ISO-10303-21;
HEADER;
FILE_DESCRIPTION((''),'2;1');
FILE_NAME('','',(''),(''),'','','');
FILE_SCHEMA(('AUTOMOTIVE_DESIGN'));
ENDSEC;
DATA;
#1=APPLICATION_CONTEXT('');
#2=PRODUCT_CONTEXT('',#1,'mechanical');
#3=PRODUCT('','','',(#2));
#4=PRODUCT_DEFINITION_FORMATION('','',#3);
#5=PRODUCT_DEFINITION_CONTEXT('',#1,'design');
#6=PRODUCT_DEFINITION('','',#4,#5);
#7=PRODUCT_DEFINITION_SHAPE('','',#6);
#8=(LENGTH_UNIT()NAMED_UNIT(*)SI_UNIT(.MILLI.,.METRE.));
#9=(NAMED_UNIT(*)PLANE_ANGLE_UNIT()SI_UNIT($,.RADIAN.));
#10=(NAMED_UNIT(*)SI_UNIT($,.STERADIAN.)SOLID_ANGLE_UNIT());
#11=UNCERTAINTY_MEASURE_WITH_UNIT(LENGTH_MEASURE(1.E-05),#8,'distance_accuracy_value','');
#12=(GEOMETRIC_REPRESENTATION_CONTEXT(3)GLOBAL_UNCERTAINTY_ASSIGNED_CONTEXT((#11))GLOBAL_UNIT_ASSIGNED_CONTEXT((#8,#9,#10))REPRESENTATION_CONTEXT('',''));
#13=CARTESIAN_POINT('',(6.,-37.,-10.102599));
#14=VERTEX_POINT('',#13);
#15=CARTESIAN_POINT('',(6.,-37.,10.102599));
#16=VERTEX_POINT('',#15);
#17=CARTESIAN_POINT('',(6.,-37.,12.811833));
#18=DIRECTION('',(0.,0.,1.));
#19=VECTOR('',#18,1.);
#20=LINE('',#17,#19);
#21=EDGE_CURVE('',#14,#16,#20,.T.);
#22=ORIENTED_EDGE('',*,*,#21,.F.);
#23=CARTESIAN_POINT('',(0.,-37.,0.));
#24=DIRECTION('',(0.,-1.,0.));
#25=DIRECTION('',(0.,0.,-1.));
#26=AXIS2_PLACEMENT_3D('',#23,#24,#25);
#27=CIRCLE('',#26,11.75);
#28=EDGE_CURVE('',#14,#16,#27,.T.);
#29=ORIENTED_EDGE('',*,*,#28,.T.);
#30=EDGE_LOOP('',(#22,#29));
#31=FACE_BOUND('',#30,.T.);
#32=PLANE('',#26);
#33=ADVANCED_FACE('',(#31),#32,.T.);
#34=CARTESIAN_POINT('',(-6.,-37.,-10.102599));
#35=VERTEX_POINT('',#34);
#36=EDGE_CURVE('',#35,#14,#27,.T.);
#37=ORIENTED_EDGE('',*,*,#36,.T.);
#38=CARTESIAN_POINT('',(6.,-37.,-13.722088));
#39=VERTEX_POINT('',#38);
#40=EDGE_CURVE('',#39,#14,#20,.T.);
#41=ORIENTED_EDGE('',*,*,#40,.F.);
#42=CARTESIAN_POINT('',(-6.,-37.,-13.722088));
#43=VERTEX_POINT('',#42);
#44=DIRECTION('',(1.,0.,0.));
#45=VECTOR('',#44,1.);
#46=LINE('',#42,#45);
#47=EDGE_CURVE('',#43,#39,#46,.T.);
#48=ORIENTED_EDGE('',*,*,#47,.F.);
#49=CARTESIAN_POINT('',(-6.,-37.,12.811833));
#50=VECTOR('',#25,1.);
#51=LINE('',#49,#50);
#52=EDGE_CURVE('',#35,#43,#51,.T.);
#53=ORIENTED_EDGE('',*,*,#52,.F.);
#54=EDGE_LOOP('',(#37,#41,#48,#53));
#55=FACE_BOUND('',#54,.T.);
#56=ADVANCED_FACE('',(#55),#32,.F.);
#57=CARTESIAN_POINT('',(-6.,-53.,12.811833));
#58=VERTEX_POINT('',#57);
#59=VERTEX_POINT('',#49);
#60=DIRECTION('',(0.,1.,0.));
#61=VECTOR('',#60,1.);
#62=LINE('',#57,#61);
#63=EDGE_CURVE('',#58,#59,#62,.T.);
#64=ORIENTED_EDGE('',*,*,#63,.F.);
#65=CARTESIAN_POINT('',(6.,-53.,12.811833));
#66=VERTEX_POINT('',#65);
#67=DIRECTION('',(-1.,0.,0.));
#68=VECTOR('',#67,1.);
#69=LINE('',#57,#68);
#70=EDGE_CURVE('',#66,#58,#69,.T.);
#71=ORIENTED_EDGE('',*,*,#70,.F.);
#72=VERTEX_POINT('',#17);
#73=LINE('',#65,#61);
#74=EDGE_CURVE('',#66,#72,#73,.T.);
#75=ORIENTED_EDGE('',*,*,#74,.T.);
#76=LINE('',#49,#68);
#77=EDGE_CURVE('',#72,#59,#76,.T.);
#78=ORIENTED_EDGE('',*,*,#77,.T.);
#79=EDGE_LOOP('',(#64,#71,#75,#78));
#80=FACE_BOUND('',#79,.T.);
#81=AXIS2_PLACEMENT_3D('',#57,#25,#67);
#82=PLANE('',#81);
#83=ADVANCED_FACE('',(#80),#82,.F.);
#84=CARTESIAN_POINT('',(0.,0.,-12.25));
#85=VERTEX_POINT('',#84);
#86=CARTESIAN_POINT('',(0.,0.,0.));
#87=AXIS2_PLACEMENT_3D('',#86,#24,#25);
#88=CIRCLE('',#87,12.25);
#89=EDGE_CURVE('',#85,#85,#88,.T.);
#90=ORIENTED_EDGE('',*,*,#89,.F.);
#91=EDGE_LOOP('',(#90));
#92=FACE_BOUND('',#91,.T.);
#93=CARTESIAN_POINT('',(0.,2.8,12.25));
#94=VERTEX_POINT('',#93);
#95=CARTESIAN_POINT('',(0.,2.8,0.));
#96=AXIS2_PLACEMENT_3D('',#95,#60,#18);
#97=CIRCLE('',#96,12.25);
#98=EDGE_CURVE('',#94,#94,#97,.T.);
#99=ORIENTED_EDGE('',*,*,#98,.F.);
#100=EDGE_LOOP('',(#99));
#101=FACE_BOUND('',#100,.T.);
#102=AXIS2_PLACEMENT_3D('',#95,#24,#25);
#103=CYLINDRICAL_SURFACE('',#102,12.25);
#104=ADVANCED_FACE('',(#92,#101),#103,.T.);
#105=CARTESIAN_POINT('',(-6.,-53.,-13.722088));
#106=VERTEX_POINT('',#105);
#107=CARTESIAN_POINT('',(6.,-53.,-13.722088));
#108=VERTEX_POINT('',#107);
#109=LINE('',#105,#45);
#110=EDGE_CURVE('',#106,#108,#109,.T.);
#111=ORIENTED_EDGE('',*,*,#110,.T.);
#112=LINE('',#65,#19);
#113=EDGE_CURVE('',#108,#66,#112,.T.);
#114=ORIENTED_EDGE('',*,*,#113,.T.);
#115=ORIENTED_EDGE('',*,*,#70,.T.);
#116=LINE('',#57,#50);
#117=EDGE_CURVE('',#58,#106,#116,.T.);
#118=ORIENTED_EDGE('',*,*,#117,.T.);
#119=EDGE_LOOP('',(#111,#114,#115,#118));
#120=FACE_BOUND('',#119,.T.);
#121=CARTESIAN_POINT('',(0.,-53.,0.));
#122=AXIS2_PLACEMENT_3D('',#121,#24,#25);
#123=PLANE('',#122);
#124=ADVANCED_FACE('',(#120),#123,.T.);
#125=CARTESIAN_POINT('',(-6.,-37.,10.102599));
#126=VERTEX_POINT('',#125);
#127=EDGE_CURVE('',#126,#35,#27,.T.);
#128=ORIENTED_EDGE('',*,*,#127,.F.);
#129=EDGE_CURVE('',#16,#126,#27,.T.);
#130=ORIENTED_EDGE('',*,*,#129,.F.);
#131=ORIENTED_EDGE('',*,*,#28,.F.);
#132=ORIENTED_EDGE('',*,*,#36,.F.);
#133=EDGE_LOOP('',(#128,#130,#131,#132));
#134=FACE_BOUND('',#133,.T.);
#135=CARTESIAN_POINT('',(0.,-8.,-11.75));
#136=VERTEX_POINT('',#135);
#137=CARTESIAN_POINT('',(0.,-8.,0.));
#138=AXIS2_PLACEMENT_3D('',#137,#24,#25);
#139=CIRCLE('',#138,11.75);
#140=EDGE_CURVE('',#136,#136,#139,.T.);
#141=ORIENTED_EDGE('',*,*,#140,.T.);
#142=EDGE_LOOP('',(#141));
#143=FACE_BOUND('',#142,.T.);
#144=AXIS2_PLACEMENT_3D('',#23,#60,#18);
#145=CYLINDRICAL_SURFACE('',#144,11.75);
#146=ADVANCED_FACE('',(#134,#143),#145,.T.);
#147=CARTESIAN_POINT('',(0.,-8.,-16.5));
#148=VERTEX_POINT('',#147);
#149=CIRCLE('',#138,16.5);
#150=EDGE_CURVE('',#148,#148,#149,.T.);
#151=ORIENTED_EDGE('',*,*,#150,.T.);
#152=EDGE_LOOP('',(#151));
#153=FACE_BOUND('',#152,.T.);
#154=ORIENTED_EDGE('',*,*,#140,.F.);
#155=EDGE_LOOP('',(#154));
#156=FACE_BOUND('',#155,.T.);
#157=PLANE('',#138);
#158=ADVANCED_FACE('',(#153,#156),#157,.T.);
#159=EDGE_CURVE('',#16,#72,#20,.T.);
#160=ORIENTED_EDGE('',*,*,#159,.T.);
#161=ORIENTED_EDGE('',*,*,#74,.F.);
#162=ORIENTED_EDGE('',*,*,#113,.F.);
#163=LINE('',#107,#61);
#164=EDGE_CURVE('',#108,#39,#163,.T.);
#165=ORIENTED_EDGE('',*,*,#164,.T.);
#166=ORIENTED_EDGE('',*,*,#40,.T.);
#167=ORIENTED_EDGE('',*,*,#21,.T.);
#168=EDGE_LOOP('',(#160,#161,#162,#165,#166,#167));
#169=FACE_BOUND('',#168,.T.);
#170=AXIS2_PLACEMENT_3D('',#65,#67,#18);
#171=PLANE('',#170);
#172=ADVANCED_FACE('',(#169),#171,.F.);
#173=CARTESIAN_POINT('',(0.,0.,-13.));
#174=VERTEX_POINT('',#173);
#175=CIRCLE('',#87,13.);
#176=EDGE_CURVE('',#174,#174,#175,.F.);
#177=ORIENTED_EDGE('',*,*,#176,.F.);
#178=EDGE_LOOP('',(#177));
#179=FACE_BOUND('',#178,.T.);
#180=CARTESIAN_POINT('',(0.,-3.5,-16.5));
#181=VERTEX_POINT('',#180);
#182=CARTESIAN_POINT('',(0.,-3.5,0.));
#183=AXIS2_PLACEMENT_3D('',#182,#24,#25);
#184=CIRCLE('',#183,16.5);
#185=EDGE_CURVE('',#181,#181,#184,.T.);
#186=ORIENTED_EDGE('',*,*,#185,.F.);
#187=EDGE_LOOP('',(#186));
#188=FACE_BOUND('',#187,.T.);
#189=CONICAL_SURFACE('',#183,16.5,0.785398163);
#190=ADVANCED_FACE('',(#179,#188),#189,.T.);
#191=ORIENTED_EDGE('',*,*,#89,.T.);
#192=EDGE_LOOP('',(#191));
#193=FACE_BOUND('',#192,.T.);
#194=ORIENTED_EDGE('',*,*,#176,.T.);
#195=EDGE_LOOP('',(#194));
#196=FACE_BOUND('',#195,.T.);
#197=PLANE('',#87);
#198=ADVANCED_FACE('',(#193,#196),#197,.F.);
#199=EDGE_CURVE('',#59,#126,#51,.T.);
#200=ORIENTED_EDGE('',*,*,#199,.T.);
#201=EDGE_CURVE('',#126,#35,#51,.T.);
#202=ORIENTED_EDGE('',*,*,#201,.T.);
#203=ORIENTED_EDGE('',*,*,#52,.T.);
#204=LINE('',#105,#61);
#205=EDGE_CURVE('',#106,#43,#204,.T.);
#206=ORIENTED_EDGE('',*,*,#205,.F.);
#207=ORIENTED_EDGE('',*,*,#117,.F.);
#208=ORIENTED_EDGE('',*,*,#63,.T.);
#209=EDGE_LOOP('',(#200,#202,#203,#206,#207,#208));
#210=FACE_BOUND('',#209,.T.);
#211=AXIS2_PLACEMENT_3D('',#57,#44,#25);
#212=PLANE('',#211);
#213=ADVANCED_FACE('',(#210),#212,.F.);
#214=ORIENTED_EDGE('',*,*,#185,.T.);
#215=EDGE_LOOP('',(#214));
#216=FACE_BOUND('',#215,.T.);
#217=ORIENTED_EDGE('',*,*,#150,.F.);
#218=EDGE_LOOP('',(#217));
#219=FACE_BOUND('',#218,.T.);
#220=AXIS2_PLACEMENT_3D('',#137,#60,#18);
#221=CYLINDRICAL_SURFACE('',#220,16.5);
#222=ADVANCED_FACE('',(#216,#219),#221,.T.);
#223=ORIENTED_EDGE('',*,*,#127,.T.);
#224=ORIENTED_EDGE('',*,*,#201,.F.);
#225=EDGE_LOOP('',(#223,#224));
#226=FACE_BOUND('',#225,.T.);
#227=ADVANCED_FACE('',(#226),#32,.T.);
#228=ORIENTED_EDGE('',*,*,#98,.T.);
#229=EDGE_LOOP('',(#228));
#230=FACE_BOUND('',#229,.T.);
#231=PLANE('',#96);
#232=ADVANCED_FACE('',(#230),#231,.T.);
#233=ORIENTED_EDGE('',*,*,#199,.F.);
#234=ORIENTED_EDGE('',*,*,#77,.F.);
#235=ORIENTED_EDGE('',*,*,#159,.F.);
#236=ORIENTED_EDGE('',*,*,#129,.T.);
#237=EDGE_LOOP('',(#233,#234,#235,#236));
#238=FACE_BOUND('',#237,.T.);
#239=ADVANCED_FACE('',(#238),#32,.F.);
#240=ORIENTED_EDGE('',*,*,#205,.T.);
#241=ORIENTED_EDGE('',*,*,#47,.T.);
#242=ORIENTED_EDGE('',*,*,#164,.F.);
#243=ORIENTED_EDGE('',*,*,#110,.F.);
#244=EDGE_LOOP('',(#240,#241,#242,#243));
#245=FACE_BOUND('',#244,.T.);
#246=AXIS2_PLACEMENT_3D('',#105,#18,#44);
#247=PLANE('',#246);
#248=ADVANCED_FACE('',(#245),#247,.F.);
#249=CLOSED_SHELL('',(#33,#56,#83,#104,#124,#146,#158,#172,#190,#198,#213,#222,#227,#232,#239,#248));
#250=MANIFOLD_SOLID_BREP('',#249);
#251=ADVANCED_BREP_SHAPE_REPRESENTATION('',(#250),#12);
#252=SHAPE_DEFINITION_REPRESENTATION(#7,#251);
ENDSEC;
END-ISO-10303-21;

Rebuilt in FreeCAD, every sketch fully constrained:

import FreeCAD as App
import Part
import Sketcher

V = App.Vector


def edges_at(feature, points):
    """Names of the edges that pass closest to the given points."""
    edges = feature.Shape.Edges
    near = lambda p: min(range(len(edges)), key=lambda i: edges[i].distToShape(Part.Vertex(*p))[0])
    return sorted({f"Edge{near(p) + 1}" for p in points})


def add_polygon(sketch, points):
    """Adds a closed chain of lines whose ends are joined by coincident constraints."""
    first, n = sketch.GeometryCount, len(points)
    for a, b in zip(points, points[1:] + points[:1]):
        sketch.addGeometry(Part.LineSegment(App.Vector(*a, 0), App.Vector(*b, 0)), False)
    for i in range(n):
        sketch.addConstraint(Sketcher.Constraint("Coincident", first + i, 2, first + (i + 1) % n, 1))

doc = App.newDocument("Part")
body = doc.addObject("PartDesign::Body", "Body")

# Sketch on XZ plane
sketch1 = doc.addObject("Sketcher::SketchObject", "Sketch")
body.addObject(sketch1)
sketch1.AttachmentSupport = (doc.XZ_Plane, [""])
sketch1.MapMode = "FlatFace"
sketch1.addGeometry(Part.Circle(V(0, 0, 0), V(0, 0, 1), 12), False)
sketch1.addConstraint([
    Sketcher.Constraint("Coincident", 0, 3, -1, 1),
    Sketcher.Constraint("Diameter", 0, 24.5),
])
pad1 = doc.addObject("PartDesign::Pad", "Pad")
body.addObject(pad1)
pad1.Profile = sketch1
pad1.Length = 2.8
pad1.Reversed = True

# Sketch on XZ plane
sketch2 = doc.addObject("Sketcher::SketchObject", "Sketch001")
body.addObject(sketch2)
sketch2.AttachmentSupport = (doc.XZ_Plane, [""])
sketch2.MapMode = "FlatFace"
sketch2.addGeometry(Part.Circle(V(0, 0, 0), V(0, 0, 1), 16), False)
sketch2.addConstraint([
    Sketcher.Constraint("Coincident", 0, 3, -1, 1),
    Sketcher.Constraint("Diameter", 0, 33.0),
])
pad2 = doc.addObject("PartDesign::Pad", "Pad001")
body.addObject(pad2)
pad2.Profile = sketch2
pad2.Length = 8
doc.recompute()

chamfer = doc.addObject("PartDesign::Chamfer", "Chamfer")
body.addObject(chamfer)
chamfer.Base = (pad2, edges_at(pad2, [(-16.5, 0, 0)]))
chamfer.Size = 3.5

# Sketch on XZ plane
sketch3 = doc.addObject("Sketcher::SketchObject", "Sketch002")
body.addObject(sketch3)
sketch3.AttachmentSupport = (doc.XZ_Plane, [""])
sketch3.MapMode = "FlatFace"
sketch3.AttachmentOffset = App.Placement(V(0, 0, 8), App.Rotation())
sketch3.addGeometry(Part.Circle(V(0, 0, 0), V(0, 0, 1), 12), False)
sketch3.addConstraint([
    Sketcher.Constraint("Coincident", 0, 3, -1, 1),
    Sketcher.Constraint("Diameter", 0, 23.5),
])
pad3 = doc.addObject("PartDesign::Pad", "Pad002")
body.addObject(pad3)
pad3.Profile = sketch3
pad3.Length = 29

# Sketch on XZ plane
sketch4 = doc.addObject("Sketcher::SketchObject", "Sketch003")
body.addObject(sketch4)
sketch4.AttachmentSupport = (doc.XZ_Plane, [""])
sketch4.MapMode = "FlatFace"
sketch4.AttachmentOffset = App.Placement(V(0, 0, 37), App.Rotation())
add_polygon(sketch4, [(-6, 13), (-6, -14), (6, -14), (6, 13)])  # lines 0-3
sketch4.addConstraint([
    Sketcher.Constraint("Vertical", 0),
    Sketcher.Constraint("Horizontal", 1),
    Sketcher.Constraint("Vertical", 2),
    Sketcher.Constraint("Horizontal", 3),
    Sketcher.Constraint("DistanceX", 1, 1, 1, 2, 12.0),
    Sketcher.Constraint("DistanceX", 0, 2, -1, 1, 6.0),
    Sketcher.Constraint("DistanceY", 0, 2, 0, 1, 26.533921),
    Sketcher.Constraint("DistanceY", 0, 2, -1, 1, 13.722088),
])
pad4 = doc.addObject("PartDesign::Pad", "Pad003")
body.addObject(pad4)
pad4.Profile = sketch4
pad4.Length = 16

doc.recompute()
